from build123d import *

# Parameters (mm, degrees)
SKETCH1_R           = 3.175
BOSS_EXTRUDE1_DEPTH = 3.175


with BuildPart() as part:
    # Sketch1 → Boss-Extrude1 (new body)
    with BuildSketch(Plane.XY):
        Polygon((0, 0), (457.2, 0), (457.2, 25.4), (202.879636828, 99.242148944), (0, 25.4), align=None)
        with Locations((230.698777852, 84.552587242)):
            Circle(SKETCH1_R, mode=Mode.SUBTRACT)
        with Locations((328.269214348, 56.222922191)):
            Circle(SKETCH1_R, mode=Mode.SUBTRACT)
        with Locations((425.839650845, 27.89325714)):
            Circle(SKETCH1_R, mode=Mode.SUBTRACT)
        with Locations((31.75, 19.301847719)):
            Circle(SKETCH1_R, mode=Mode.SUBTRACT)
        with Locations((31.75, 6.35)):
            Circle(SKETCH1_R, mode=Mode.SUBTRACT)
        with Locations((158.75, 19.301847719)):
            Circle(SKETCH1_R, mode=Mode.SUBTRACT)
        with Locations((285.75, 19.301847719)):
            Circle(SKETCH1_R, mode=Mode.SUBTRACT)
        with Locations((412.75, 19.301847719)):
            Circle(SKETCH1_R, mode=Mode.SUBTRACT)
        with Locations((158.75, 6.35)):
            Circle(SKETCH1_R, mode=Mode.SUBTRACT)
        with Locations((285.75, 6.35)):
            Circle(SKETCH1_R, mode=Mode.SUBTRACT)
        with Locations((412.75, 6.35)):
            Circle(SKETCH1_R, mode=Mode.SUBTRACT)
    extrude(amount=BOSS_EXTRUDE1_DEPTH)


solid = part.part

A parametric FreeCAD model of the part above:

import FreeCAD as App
import Part
import Sketcher
Q = App.Units.Quantity


def add_polygon(sketch, points):
    """Adds a closed chain of lines whose ends are joined by coincident constraints."""
    first, n = sketch.GeometryCount, len(points)
    for a, b in zip(points, points[1:] + points[:1]):
        sketch.addGeometry(Part.LineSegment(App.Vector(*a, 0), App.Vector(*b, 0)), False)
    for i in range(n):
        sketch.addConstraint(Sketcher.Constraint("Coincident", first + i, 2, first + (i + 1) % n, 1))

doc = App.newDocument("Part")
body = doc.addObject("PartDesign::Body", "Body")

# Sketch on XY plane
sketch1 = body.newObject("Sketcher::SketchObject", "Sketch")
sketch1.AttachmentSupport = (doc.getObject("XY_Plane"), [""])
sketch1.MapMode = "FlatFace"
add_polygon(sketch1, [(0, 0), (457.2, 0), (457.2, 25.4), (202.9, 99.2), (0, 25.4)])  # lines 0-4
sketch1.addGeometry(Part.Circle(App.Vector(31.8, 6.3, 0), App.Vector(0, 0, 1), 3.2), False)  # 5
sketch1.addGeometry(Part.Circle(App.Vector(31.8, 19.3, 0), App.Vector(0, 0, 1), 3.2), False)  # 6
sketch1.addGeometry(Part.Circle(App.Vector(158.8, 6.3, 0), App.Vector(0, 0, 1), 3.2), False)  # 7
sketch1.addGeometry(Part.Circle(App.Vector(158.8, 19.3, 0), App.Vector(0, 0, 1), 3.2), False)  # 8
sketch1.addGeometry(Part.Circle(App.Vector(285.8, 6.3, 0), App.Vector(0, 0, 1), 3.2), False)  # 9
sketch1.addGeometry(Part.Circle(App.Vector(285.8, 19.3, 0), App.Vector(0, 0, 1), 3.2), False)  # 10
sketch1.addGeometry(Part.Circle(App.Vector(412.8, 6.3, 0), App.Vector(0, 0, 1), 3.2), False)  # 11
sketch1.addGeometry(Part.Circle(App.Vector(412.8, 19.3, 0), App.Vector(0, 0, 1), 3.2), False)  # 12
sketch1.addGeometry(Part.Circle(App.Vector(425.8, 27.9, 0), App.Vector(0, 0, 1), 3.2), False)  # 13
sketch1.addGeometry(Part.Circle(App.Vector(328.3, 56.2, 0), App.Vector(0, 0, 1), 3.2), False)  # 14
sketch1.addGeometry(Part.Circle(App.Vector(230.7, 84.6, 0), App.Vector(0, 0, 1), 3.2), False)  # 15
sketch1.addConstraint([
    Sketcher.Constraint("Horizontal", 0),
    Sketcher.Constraint("Vertical", 1),
    Sketcher.Constraint("Vertical", 4),
    Sketcher.Constraint("Coincident", 4, 2, -1, 1),
    Sketcher.Constraint("Equal", 5, 6),
    Sketcher.Constraint("Equal", 6, 7),
    Sketcher.Constraint("Equal", 7, 8),
    Sketcher.Constraint("Equal", 8, 9),
    Sketcher.Constraint("Equal", 9, 10),
    Sketcher.Constraint("Equal", 10, 11),
    Sketcher.Constraint("Equal", 11, 12),
    Sketcher.Constraint("Equal", 12, 13),
    Sketcher.Constraint("Equal", 13, 14),
    Sketcher.Constraint("Equal", 14, 15),
    Sketcher.Constraint("Horizontal", 5, 3, 7, 3),
    Sketcher.Constraint("Horizontal", 6, 3, 8, 3),
    Sketcher.Constraint("Horizontal", 7, 3, 9, 3),
    Sketcher.Constraint("Horizontal", 8, 3, 10, 3),
    Sketcher.Constraint("Horizontal", 9, 3, 11, 3),
    Sketcher.Constraint("Horizontal", 10, 3, 12, 3),
    Sketcher.Constraint("Horizontal", 1, 2, 3, 2),
    Sketcher.Constraint("Vertical", 5, 3, 6, 3),
    Sketcher.Constraint("Vertical", 7, 3, 8, 3),
    Sketcher.Constraint("Vertical", 9, 3, 10, 3),
    Sketcher.Constraint("Vertical", 11, 3, 12, 3),
    Sketcher.Constraint("Diameter", 5, Q("0.25 in")),
    Sketcher.Constraint("DistanceX", 0, 1, 0, 2, Q("18 in")),
    Sketcher.Constraint("DistanceY", 1, 1, 1, 2, Q("1 in")),
    Sketcher.Constraint("Angle", 3, Q("-160 deg")),
    Sketcher.Constraint("DistanceX", 5, 3, 7, 3, Q("5 in")),
    Sketcher.Constraint("DistanceX", 7, 3, 9, 3, Q("5 in")),
    Sketcher.Constraint("DistanceX", 9, 3, 11, 3, Q("5 in")),
    Sketcher.Constraint("Distance", 3, Q("8.5 in")),
    Sketcher.Constraint("DistanceX", -1, 1, 5, 3, Q("1.25 in")),
    Sketcher.Constraint("DistanceY", -1, 1, 5, 3, Q("0.25 in")),
    Sketcher.Constraint("DistanceY", 8, 3, 2, 2, 79.940301),
    Sketcher.Constraint("DistanceX", -1, 1, 13, 3, 425.839651),
    Sketcher.Constraint("DistanceY", 12, 3, 13, 3, 8.591409),
    Sketcher.Constraint("DistanceY", 10, 3, 15, 3, 65.25074),
    Sketcher.Constraint("DistanceX", 2, 2, 15, 3, 27.819141),
    Sketcher.Constraint("DistanceX", -1, 1, 14, 3, 328.269214),
    Sketcher.Constraint("DistanceY", -1, 1, 14, 3, 56.222922),
])
pad1 = body.newObject("PartDesign::Pad", "Pad")
pad1.Profile = sketch1
pad1.Length = Q("0.125 in")

doc.recompute()
